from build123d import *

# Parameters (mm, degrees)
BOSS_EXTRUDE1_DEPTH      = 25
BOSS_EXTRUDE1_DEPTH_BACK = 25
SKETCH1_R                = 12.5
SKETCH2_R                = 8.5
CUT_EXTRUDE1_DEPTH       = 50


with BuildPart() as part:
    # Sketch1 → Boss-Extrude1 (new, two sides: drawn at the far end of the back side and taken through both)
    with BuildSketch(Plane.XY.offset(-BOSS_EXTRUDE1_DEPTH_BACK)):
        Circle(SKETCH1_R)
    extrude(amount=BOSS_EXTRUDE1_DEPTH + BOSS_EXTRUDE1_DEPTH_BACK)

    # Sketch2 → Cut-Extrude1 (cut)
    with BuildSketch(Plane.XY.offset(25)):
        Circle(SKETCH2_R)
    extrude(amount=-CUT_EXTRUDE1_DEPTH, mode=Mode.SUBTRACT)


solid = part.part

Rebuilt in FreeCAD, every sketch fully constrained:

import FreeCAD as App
import Part
import Sketcher

doc = App.newDocument("Part")
params = doc.addObject("Spreadsheet::Sheet", "Params")
for row, (alias, value) in enumerate([
    ("sketch1_diameter", "25 mm"),
    ("pad1_length", "25 mm"),
    ("pad1_length2", "25 mm"),
    ("sketch2_diameter", "17 mm"),
    ("pocket1_length", "50 mm"),
], start=1):
    params.set(f"A{row}", alias)
    params.set(f"B{row}", "=" + value)
    params.setAlias(f"B{row}", alias)

body = doc.addObject("PartDesign::Body", "Body")

# Sketch on XY plane
sketch1 = doc.addObject("Sketcher::SketchObject", "Sketch")
body.addObject(sketch1)
sketch1.AttachmentSupport = (doc.XY_Plane, [""])
sketch1.MapMode = "FlatFace"
sketch1.addGeometry(Part.Circle(App.Vector(0, 0, 0), App.Vector(0, 0, 1), 12), False)
sketch1.addConstraint([
    Sketcher.Constraint("Coincident", 0, 3, -1, 1),
    Sketcher.Constraint("Diameter", 0, 25.0),
])
sketch1.setExpression("Constraints[1]", "Params.sketch1_diameter")
pad1 = doc.addObject("PartDesign::Pad", "Pad")
body.addObject(pad1)
pad1.Profile = sketch1
pad1.Type = "TwoLengths"
pad1.setExpression("Length", "Params.pad1_length")
pad1.setExpression("Length2", "Params.pad1_length2")

# Sketch on XY plane
sketch2 = doc.addObject("Sketcher::SketchObject", "Sketch001")
body.addObject(sketch2)
sketch2.AttachmentSupport = (doc.XY_Plane, [""])
sketch2.MapMode = "FlatFace"
sketch2.AttachmentOffset = App.Placement(App.Vector(0, 0, 25), App.Rotation())
sketch2.addGeometry(Part.Circle(App.Vector(0, 0, 0), App.Vector(0, 0, 1), 8), False)
sketch2.addConstraint([
    Sketcher.Constraint("Coincident", 0, 3, -1, 1),
    Sketcher.Constraint("Diameter", 0, 17.0),
])
sketch2.setExpression("Constraints[1]", "Params.sketch2_diameter")
pocket1 = doc.addObject("PartDesign::Pocket", "Pocket")
body.addObject(pocket1)
pocket1.Profile = sketch2
pocket1.setExpression("Length", "Params.pocket1_length")

doc.recompute()
